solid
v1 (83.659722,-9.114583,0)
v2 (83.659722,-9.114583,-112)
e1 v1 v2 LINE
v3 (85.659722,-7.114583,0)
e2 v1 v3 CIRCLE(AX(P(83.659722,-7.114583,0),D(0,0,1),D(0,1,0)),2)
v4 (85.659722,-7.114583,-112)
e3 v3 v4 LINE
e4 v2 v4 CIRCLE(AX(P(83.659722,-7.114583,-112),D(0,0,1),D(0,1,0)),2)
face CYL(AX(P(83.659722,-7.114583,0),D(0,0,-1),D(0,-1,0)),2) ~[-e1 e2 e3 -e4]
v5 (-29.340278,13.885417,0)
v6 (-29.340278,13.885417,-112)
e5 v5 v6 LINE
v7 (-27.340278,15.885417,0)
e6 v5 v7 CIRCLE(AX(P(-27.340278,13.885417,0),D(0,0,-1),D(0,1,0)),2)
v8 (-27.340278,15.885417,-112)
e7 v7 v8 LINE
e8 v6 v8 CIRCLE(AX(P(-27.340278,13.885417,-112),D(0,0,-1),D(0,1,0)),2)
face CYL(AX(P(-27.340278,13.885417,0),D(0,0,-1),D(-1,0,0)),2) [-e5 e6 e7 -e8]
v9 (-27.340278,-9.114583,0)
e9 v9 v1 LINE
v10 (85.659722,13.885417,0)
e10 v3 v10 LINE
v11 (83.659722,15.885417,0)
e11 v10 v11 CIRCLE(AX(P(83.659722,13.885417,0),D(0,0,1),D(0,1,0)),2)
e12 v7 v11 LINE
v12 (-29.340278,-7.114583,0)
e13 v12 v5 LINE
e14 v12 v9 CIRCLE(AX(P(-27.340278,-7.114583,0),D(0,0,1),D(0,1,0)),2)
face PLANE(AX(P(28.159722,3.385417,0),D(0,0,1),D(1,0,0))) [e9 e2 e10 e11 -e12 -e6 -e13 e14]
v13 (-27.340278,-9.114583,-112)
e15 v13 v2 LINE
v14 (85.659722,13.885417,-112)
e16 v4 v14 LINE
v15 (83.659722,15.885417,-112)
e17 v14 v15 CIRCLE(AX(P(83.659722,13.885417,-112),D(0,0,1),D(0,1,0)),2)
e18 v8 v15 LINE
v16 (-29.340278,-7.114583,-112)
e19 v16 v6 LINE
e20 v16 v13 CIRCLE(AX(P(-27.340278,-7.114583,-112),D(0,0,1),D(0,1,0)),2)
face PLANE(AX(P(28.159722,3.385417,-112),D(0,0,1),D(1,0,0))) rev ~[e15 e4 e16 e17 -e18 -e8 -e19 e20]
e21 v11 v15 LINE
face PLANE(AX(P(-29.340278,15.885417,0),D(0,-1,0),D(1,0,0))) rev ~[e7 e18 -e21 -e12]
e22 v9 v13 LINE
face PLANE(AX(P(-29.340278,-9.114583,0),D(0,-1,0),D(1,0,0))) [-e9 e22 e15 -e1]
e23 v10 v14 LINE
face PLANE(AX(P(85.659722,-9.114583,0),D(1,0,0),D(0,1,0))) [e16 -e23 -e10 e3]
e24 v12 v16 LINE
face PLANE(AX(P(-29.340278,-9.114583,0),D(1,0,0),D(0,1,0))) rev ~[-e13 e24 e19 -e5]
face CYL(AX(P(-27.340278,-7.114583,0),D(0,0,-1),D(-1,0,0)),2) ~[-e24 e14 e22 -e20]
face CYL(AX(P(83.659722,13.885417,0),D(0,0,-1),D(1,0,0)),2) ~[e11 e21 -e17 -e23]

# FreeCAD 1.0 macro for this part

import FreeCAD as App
import Part
import Sketcher
Q = App.Units.Quantity


def edges_at(feature, points):
    """Names of the edges that pass closest to the given points."""
    edges = feature.Shape.Edges
    near = lambda p: min(range(len(edges)), key=lambda i: edges[i].distToShape(Part.Vertex(*p))[0])
    return sorted({f"Edge{near(p) + 1}" for p in points})

doc = App.newDocument("Part")
body = doc.addObject("PartDesign::Body", "Body")

# Sketch on XY plane
sketch1 = body.newObject("Sketcher::SketchObject", "Sketch")
sketch1.AttachmentSupport = (doc.getObject("XY_Plane"), [""])
sketch1.MapMode = "FlatFace"
sketch1.addGeometry(Part.LineSegment(App.Vector(-29, 16, 0), App.Vector(-29, -9, 0)), False)
sketch1.addGeometry(Part.LineSegment(App.Vector(-29, -9, 0), App.Vector(86, -9, 0)), False)
sketch1.addGeometry(Part.LineSegment(App.Vector(86, -9, 0), App.Vector(86, 16, 0)), False)
sketch1.addGeometry(Part.LineSegment(App.Vector(86, 16, 0), App.Vector(-29, 16, 0)), False)
sketch1.addConstraint(Sketcher.Constraint("Coincident", 0, 2, 1, 1))
sketch1.addConstraint(Sketcher.Constraint("Coincident", 1, 2, 2, 1))
sketch1.addConstraint(Sketcher.Constraint("Coincident", 2, 2, 3, 1))
sketch1.addConstraint(Sketcher.Constraint("Coincident", 3, 2, 0, 1))
sketch1.addConstraint(Sketcher.Constraint("Vertical", 0))
sketch1.addConstraint(Sketcher.Constraint("Horizontal", 1))
sketch1.addConstraint(Sketcher.Constraint("Vertical", 2))
sketch1.addConstraint(Sketcher.Constraint("Horizontal", 3))
sketch1.addConstraint(Sketcher.Constraint("DistanceX", 1, 1, 1, 2, Q("115 mm")))
sketch1.addConstraint(Sketcher.Constraint("DistanceY", 0, 2, 0, 1, Q("25 mm")))
sketch1.addConstraint(Sketcher.Constraint("DistanceX", 0, 2, -1, 1, Q("29.340278 mm")))
sketch1.addConstraint(Sketcher.Constraint("DistanceY", 0, 2, -1, 1, Q("9.114583 mm")))
pad1 = body.newObject("PartDesign::Pad", "Pad")
pad1.Profile = sketch1
pad1.Length = 112
pad1.Reversed = True
doc.recompute()

fillet = body.newObject("PartDesign::Fillet", "Fillet")
fillet.Base = (pad1, edges_at(pad1, [
    (-29.34, 15.885, -56),
    (85.66, 15.885, -56),
    (85.66, -9.115, -56),
    (-29.34, -9.115, -56),
]))
fillet.Radius = 2

doc.recompute()
